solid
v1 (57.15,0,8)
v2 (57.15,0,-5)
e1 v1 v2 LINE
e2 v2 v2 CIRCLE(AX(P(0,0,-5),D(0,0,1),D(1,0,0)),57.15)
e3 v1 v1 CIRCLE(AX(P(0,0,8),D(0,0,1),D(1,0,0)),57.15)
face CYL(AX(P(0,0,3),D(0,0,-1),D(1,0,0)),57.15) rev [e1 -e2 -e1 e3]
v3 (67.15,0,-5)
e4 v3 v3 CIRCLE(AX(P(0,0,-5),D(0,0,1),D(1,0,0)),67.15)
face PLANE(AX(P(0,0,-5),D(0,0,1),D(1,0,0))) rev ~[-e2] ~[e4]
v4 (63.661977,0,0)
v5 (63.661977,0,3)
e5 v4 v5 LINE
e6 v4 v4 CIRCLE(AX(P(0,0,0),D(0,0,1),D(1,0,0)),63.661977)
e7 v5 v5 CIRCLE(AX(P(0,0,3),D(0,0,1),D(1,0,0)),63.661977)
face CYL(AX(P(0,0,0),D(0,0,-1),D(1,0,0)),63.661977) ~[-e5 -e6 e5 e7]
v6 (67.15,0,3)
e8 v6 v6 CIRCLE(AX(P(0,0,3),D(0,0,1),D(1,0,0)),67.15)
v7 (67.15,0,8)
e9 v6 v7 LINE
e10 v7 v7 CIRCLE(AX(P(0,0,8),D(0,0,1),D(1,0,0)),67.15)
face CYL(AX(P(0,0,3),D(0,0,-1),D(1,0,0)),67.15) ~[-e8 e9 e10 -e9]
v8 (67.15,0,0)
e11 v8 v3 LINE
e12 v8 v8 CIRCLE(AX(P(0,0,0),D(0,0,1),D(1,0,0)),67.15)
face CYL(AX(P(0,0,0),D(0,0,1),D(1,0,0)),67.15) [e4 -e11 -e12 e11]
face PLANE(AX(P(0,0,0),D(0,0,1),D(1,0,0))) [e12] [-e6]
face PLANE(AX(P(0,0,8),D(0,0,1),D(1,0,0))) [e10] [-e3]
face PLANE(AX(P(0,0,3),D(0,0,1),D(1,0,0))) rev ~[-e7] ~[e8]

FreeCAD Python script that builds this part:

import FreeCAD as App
import Part
import Sketcher

V = App.Vector
Q = App.Units.Quantity

doc = App.newDocument("Part")
params = doc.addObject("Spreadsheet::Sheet", "Params")
for row, (alias, value) in enumerate([
    ("sketch1_diameter", "114.3 mm"),
    ("pad1_length", "3 mm"),
    ("sketch2_diameter", "134.3 mm"),
    ("sketch2_diameter2", "114.3 mm"),
    ("pad2_length", "5 mm"),
    ("sketch3_diameter", "134.3 mm"),
    ("sketch3_diameter2", "114.3 mm"),
    ("pad3_length", "5 mm"),
], start=1):
    params.set(f"A{row}", alias)
    params.set(f"B{row}", "=" + value)
    params.setAlias(f"B{row}", alias)

body = doc.addObject("PartDesign::Body", "Body")

sketch1 = body.newObject("Sketcher::SketchObject", "Sketch")
sketch1.AttachmentSupport = (doc.getObject("XY_Plane"), [""])
sketch1.MapMode = "FlatFace"
sketch1.addGeometry([
    Part.Circle(V(0, 0, 0), V(0, 0, 1), 63.661977),
    Part.Circle(V(0, 0, 0), V(0, 0, 1), 57.15),
], False)
sketch1.addConstraint([
    Sketcher.Constraint("Coincident", 0, 3, -1, 1),
    Sketcher.Constraint("Coincident", 1, 3, -1, 1),
    Sketcher.Constraint("Diameter", 1, Q("114.3 mm")),
    Sketcher.Constraint("Diameter", 0, Q("127.323954 mm")),
])
sketch1.setExpression("Constraints[2]", "Params.sketch1_diameter")
pad1 = body.newObject("PartDesign::Pad", "Pad")
pad1.Profile = sketch1
pad1.setExpression("Length", "Params.pad1_length")

sketch2 = body.newObject("Sketcher::SketchObject", "Sketch001")
sketch2.AttachmentSupport = (doc.getObject("XY_Plane"), [""])
sketch2.MapMode = "FlatFace"
sketch2.addGeometry([
    Part.Circle(V(0, 0, 0), V(0, 0, 1), 67.15),
    Part.Circle(V(0, 0, 0), V(0, 0, 1), 57.15),
], False)
sketch2.addConstraint([
    Sketcher.Constraint("Coincident", 0, 3, -1, 1),
    Sketcher.Constraint("Coincident", 1, 3, -1, 1),
    Sketcher.Constraint("Diameter", 0, Q("134.3 mm")),
    Sketcher.Constraint("Diameter", 1, Q("114.3 mm")),
])
sketch2.setExpression("Constraints[2]", "Params.sketch2_diameter")
sketch2.setExpression("Constraints[3]", "Params.sketch2_diameter2")
pad2 = body.newObject("PartDesign::Pad", "Pad001")
pad2.Profile = sketch2
pad2.setExpression("Length", "Params.pad2_length")
pad2.Reversed = True

sketch3 = body.newObject("Sketcher::SketchObject", "Sketch002")
sketch3.AttachmentSupport = (doc.getObject("XY_Plane"), [""])
sketch3.MapMode = "FlatFace"
sketch3.AttachmentOffset = App.Placement(V(0, 0, 3), App.Rotation())
sketch3.addGeometry([
    Part.Circle(V(0, 0, 0), V(0, 0, 1), 67.15),
    Part.Circle(V(0, 0, 0), V(0, 0, 1), 57.15),
], False)
sketch3.addConstraint([
    Sketcher.Constraint("Coincident", 0, 3, -1, 1),
    Sketcher.Constraint("Coincident", 1, 3, -1, 1),
    Sketcher.Constraint("Diameter", 0, Q("134.3 mm")),
    Sketcher.Constraint("Diameter", 1, Q("114.3 mm")),
])
sketch3.setExpression("Constraints[2]", "Params.sketch3_diameter")
sketch3.setExpression("Constraints[3]", "Params.sketch3_diameter2")
pad3 = body.newObject("PartDesign::Pad", "Pad002")
pad3.Profile = sketch3
pad3.setExpression("Length", "Params.pad3_length")

doc.recompute()
